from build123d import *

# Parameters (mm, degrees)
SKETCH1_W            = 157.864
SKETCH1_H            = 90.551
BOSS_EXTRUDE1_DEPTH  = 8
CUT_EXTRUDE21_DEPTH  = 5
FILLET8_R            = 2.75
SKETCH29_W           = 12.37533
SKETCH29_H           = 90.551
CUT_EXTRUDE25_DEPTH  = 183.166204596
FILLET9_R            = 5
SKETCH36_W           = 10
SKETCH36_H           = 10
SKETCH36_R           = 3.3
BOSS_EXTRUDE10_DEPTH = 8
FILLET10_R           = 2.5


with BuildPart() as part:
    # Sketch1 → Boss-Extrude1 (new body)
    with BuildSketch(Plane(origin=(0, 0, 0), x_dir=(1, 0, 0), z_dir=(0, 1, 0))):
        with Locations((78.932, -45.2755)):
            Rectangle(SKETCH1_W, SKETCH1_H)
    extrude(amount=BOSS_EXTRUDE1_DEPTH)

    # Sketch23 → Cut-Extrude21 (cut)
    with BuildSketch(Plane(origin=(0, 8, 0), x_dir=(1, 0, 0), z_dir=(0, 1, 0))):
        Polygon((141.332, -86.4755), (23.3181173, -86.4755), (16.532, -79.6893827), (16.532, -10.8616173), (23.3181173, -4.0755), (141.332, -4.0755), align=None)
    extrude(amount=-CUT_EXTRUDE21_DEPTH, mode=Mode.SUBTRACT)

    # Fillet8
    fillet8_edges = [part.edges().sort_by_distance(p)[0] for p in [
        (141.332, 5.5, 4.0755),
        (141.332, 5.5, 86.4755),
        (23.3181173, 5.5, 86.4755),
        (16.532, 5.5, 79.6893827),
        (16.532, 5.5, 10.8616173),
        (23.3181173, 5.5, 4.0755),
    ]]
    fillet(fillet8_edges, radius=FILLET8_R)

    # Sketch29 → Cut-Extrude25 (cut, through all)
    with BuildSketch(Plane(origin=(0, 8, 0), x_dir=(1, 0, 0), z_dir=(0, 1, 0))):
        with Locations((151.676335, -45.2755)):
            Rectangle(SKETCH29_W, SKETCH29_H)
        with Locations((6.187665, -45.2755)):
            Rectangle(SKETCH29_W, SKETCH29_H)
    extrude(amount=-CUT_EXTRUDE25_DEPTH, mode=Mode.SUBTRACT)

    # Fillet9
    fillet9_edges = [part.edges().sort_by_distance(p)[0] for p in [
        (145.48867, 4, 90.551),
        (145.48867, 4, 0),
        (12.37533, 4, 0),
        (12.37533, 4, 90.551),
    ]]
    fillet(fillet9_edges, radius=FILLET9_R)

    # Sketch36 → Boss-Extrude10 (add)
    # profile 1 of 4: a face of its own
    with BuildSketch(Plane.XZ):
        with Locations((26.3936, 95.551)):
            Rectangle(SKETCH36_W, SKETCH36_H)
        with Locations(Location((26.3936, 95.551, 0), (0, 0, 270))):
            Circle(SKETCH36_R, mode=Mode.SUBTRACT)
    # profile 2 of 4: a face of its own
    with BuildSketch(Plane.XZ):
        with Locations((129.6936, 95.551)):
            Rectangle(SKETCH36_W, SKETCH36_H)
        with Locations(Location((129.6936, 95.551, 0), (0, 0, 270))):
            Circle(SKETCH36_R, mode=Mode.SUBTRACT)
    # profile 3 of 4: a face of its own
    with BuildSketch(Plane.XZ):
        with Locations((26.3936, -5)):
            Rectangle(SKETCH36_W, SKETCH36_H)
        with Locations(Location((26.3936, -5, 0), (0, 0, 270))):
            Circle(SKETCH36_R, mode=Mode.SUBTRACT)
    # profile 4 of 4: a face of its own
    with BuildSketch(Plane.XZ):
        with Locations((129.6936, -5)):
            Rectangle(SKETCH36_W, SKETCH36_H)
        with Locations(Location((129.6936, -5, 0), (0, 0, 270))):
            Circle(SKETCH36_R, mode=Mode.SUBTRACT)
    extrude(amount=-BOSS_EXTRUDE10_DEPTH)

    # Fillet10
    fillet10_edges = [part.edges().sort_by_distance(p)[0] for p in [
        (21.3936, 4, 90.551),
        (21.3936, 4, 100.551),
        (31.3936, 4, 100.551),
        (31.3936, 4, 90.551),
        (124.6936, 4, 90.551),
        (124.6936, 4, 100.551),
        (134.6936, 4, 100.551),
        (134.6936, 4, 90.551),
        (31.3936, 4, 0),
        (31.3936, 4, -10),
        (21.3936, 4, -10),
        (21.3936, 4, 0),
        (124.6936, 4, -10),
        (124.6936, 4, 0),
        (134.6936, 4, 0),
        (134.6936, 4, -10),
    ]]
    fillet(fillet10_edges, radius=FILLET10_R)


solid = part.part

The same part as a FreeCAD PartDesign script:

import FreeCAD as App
import Part
import Sketcher

V = App.Vector
Q = App.Units.Quantity


def edges_at(feature, points):
    """Names of the edges that pass closest to the given points."""
    edges = feature.Shape.Edges
    near = lambda p: min(range(len(edges)), key=lambda i: edges[i].distToShape(Part.Vertex(*p))[0])
    return sorted({f"Edge{near(p) + 1}" for p in points})

doc = App.newDocument("Part")
body = doc.addObject("PartDesign::Body", "Body")

# Sketch on XZ plane
sketch1 = doc.addObject("Sketcher::SketchObject", "Sketch")
body.addObject(sketch1)
sketch1.AttachmentSupport = (doc.XZ_Plane, [""])
sketch1.MapMode = "FlatFace"
sketch1.addGeometry(Part.LineSegment(V(0, 0, 0), V(0, 91, 0)), False)
sketch1.addGeometry(Part.LineSegment(V(0, 91, 0), V(158, 91, 0)), False)
sketch1.addGeometry(Part.LineSegment(V(158, 91, 0), V(158, 0, 0)), False)
sketch1.addGeometry(Part.LineSegment(V(158, 0, 0), V(0, 0, 0)), False)
sketch1.addConstraint(Sketcher.Constraint("Coincident", 0, 2, 1, 1))
sketch1.addConstraint(Sketcher.Constraint("Coincident", 1, 2, 2, 1))
sketch1.addConstraint(Sketcher.Constraint("Coincident", 2, 2, 3, 1))
sketch1.addConstraint(Sketcher.Constraint("Coincident", 3, 2, 0, 1))
sketch1.addConstraint(Sketcher.Constraint("Vertical", 0))
sketch1.addConstraint(Sketcher.Constraint("Horizontal", 1))
sketch1.addConstraint(Sketcher.Constraint("Vertical", 2))
sketch1.addConstraint(Sketcher.Constraint("Horizontal", 3))
sketch1.addConstraint(Sketcher.Constraint("Coincident", 3, 2, -1, 1))
sketch1.addConstraint(Sketcher.Constraint("DistanceX", 1, 1, 1, 2, Q("157.864 mm")))
sketch1.addConstraint(Sketcher.Constraint("DistanceY", 0, 1, 0, 2, Q("90.551 mm")))
pad1 = doc.addObject("PartDesign::Pad", "Pad")
body.addObject(pad1)
pad1.Profile = sketch1
pad1.Length = 8
pad1.Reversed = True

# Sketch on XZ plane
sketch2 = doc.addObject("Sketcher::SketchObject", "Sketch001")
body.addObject(sketch2)
sketch2.AttachmentSupport = (doc.XZ_Plane, [""])
sketch2.MapMode = "FlatFace"
sketch2.AttachmentOffset = App.Placement(V(0, 0, -8), App.Rotation())
sketch2.addGeometry(Part.LineSegment(V(23, 86, 0), V(141, 86, 0)), False)
sketch2.addGeometry(Part.LineSegment(V(141, 86, 0), V(141, 4, 0)), False)
sketch2.addGeometry(Part.LineSegment(V(141, 4, 0), V(23, 4, 0)), False)
sketch2.addGeometry(Part.LineSegment(V(23, 4, 0), V(17, 11, 0)), False)
sketch2.addGeometry(Part.LineSegment(V(17, 11, 0), V(17, 80, 0)), False)
sketch2.addGeometry(Part.LineSegment(V(17, 80, 0), V(23, 86, 0)), False)
sketch2.addConstraint(Sketcher.Constraint("Coincident", 0, 2, 1, 1))
sketch2.addConstraint(Sketcher.Constraint("Coincident", 1, 2, 2, 1))
sketch2.addConstraint(Sketcher.Constraint("Coincident", 2, 2, 3, 1))
sketch2.addConstraint(Sketcher.Constraint("Coincident", 3, 2, 4, 1))
sketch2.addConstraint(Sketcher.Constraint("Coincident", 4, 2, 5, 1))
sketch2.addConstraint(Sketcher.Constraint("Coincident", 5, 2, 0, 1))
sketch2.addConstraint(Sketcher.Constraint("Horizontal", 0))
sketch2.addConstraint(Sketcher.Constraint("Vertical", 1))
sketch2.addConstraint(Sketcher.Constraint("Horizontal", 2))
sketch2.addConstraint(Sketcher.Constraint("Vertical", 4))
sketch2.addConstraint(Sketcher.Constraint("Perpendicular", 3, 5))
sketch2.addConstraint(Sketcher.Constraint("Vertical", 2, 2, 5, 2))
sketch2.addConstraint(Sketcher.Constraint("Equal", 3, 5))
sketch2.addConstraint(Sketcher.Constraint("DistanceY", 1, 2, 1, 1, Q("82.4 mm")))
sketch2.addConstraint(Sketcher.Constraint("DistanceX", 3, 2, 1, 2, Q("124.8 mm")))
sketch2.addConstraint(Sketcher.Constraint("DistanceX", -1, 1, 0, 2, Q("141.332 mm")))
sketch2.addConstraint(Sketcher.Constraint("DistanceY", -1, 1, 0, 2, Q("86.4755 mm")))
sketch2.addConstraint(Sketcher.Constraint("Distance", 3, Q("9.597019 mm")))
pocket1 = doc.addObject("PartDesign::Pocket", "Pocket")
body.addObject(pocket1)
pocket1.Profile = sketch2
pocket1.Length = 5
pocket1.Reversed = True
doc.recompute()

fillet = doc.addObject("PartDesign::Fillet", "Fillet")
body.addObject(fillet)
fillet.Base = (pocket1, edges_at(pocket1, [
    (141.332, 5.5, 4.075),
    (141.332, 5.5, 86.475),
    (23.318, 5.5, 86.475),
    (16.532, 5.5, 79.689),
    (16.532, 5.5, 10.862),
    (23.318, 5.5, 4.075),
]))
fillet.Radius = 2.75

# Sketch on XZ plane
sketch3 = doc.addObject("Sketcher::SketchObject", "Sketch002")
body.addObject(sketch3)
sketch3.AttachmentSupport = (doc.XZ_Plane, [""])
sketch3.MapMode = "FlatFace"
sketch3.AttachmentOffset = App.Placement(V(0, 0, -8), App.Rotation())
sketch3.addGeometry(Part.LineSegment(V(145, 0, 0), V(145, 91, 0)), False)
sketch3.addGeometry(Part.LineSegment(V(145, 91, 0), V(158, 91, 0)), False)
sketch3.addGeometry(Part.LineSegment(V(158, 91, 0), V(158, 0, 0)), False)
sketch3.addGeometry(Part.LineSegment(V(158, 0, 0), V(145, 0, 0)), False)
sketch3.addGeometry(Part.LineSegment(V(0, 0, 0), V(0, 91, 0)), False)
sketch3.addGeometry(Part.LineSegment(V(0, 91, 0), V(12, 91, 0)), False)
sketch3.addGeometry(Part.LineSegment(V(12, 91, 0), V(12, 0, 0)), False)
sketch3.addGeometry(Part.LineSegment(V(12, 0, 0), V(0, 0, 0)), False)
sketch3.addConstraint(Sketcher.Constraint("Coincident", 0, 2, 1, 1))
sketch3.addConstraint(Sketcher.Constraint("Coincident", 1, 2, 2, 1))
sketch3.addConstraint(Sketcher.Constraint("Coincident", 2, 2, 3, 1))
sketch3.addConstraint(Sketcher.Constraint("Coincident", 3, 2, 0, 1))
sketch3.addConstraint(Sketcher.Constraint("Coincident", 4, 2, 5, 1))
sketch3.addConstraint(Sketcher.Constraint("Coincident", 5, 2, 6, 1))
sketch3.addConstraint(Sketcher.Constraint("Coincident", 6, 2, 7, 1))
sketch3.addConstraint(Sketcher.Constraint("Coincident", 7, 2, 4, 1))
sketch3.addConstraint(Sketcher.Constraint("Vertical", 0))
sketch3.addConstraint(Sketcher.Constraint("Horizontal", 1))
sketch3.addConstraint(Sketcher.Constraint("Vertical", 2))
sketch3.addConstraint(Sketcher.Constraint("Horizontal", 3))
sketch3.addConstraint(Sketcher.Constraint("Vertical", 4))
sketch3.addConstraint(Sketcher.Constraint("Horizontal", 5))
sketch3.addConstraint(Sketcher.Constraint("Vertical", 6))
sketch3.addConstraint(Sketcher.Constraint("Horizontal", 7))
sketch3.addConstraint(Sketcher.Constraint("Coincident", 7, 2, -1, 1))
sketch3.addConstraint(Sketcher.Constraint("PointOnObject", 2, 2, -1))
sketch3.addConstraint(Sketcher.Constraint("Horizontal", 1, 2, 4, 2))
sketch3.addConstraint(Sketcher.Constraint("Equal", 3, 5))
sketch3.addConstraint(Sketcher.Constraint("DistanceY", 0, 1, 0, 2, Q("90.551 mm")))
sketch3.addConstraint(Sketcher.Constraint("DistanceX", -1, 1, 1, 2, Q("157.864 mm")))
sketch3.addConstraint(Sketcher.Constraint("DistanceX", 1, 1, 1, 2, Q("12.37533 mm")))
pocket2 = doc.addObject("PartDesign::Pocket", "Pocket001")
body.addObject(pocket2)
pocket2.Profile = sketch3
pocket2.Type = "ThroughAll"
pocket2.Reversed = True
doc.recompute()

fillet2 = doc.addObject("PartDesign::Fillet", "Fillet001")
body.addObject(fillet2)
fillet2.Base = (pocket2, edges_at(pocket2, [
    (145.489, 4, 90.551),
    (145.489, 4, 0),
    (12.375, 4, 0),
    (12.375, 4, 90.551),
]))
fillet2.Radius = 5

# Sketch on XZ plane
sketch4 = doc.addObject("Sketcher::SketchObject", "Sketch003")
body.addObject(sketch4)
sketch4.AttachmentSupport = (doc.XZ_Plane, [""])
sketch4.MapMode = "FlatFace"
sketch4.addGeometry(Part.LineSegment(V(21.4, 100.6, 0), V(21.4, 90.6, 0)), False)
sketch4.addGeometry(Part.LineSegment(V(21.4, 90.6, 0), V(31.4, 90.6, 0)), False)
sketch4.addGeometry(Part.LineSegment(V(31.4, 90.6, 0), V(31.4, 100.6, 0)), False)
sketch4.addGeometry(Part.LineSegment(V(31.4, 100.6, 0), V(21.4, 100.6, 0)), False)
sketch4.addGeometry(Part.Circle(V(26.4, 95.6, 0), V(0, 0, 1), 3.3), False)
sketch4.addGeometry(Part.LineSegment(V(124.7, 100.6, 0), V(124.7, 90.6, 0)), False)
sketch4.addGeometry(Part.LineSegment(V(124.7, 90.6, 0), V(134.7, 90.6, 0)), False)
sketch4.addGeometry(Part.LineSegment(V(134.7, 90.6, 0), V(134.7, 100.6, 0)), False)
sketch4.addGeometry(Part.LineSegment(V(134.7, 100.6, 0), V(124.7, 100.6, 0)), False)
sketch4.addGeometry(Part.Circle(V(129.7, 95.6, 0), V(0, 0, 1), 3.3), False)
sketch4.addGeometry(Part.LineSegment(V(21.4, 0, 0), V(21.4, -10, 0)), False)
sketch4.addGeometry(Part.LineSegment(V(21.4, -10, 0), V(31.4, -10, 0)), False)
sketch4.addGeometry(Part.LineSegment(V(31.4, -10, 0), V(31.4, 0, 0)), False)
sketch4.addGeometry(Part.LineSegment(V(31.4, 0, 0), V(21.4, 0, 0)), False)
sketch4.addGeometry(Part.Circle(V(26.4, -5, 0), V(0, 0, 1), 3.3), False)
sketch4.addGeometry(Part.LineSegment(V(124.7, 0, 0), V(124.7, -10, 0)), False)
sketch4.addGeometry(Part.LineSegment(V(124.7, -10, 0), V(134.7, -10, 0)), False)
sketch4.addGeometry(Part.LineSegment(V(134.7, -10, 0), V(134.7, 0, 0)), False)
sketch4.addGeometry(Part.LineSegment(V(134.7, 0, 0), V(124.7, 0, 0)), False)
sketch4.addGeometry(Part.Circle(V(129.7, -5, 0), V(0, 0, 1), 3.3), False)
sketch4.addConstraint(Sketcher.Constraint("Coincident", 0, 2, 1, 1))
sketch4.addConstraint(Sketcher.Constraint("Coincident", 1, 2, 2, 1))
sketch4.addConstraint(Sketcher.Constraint("Coincident", 2, 2, 3, 1))
sketch4.addConstraint(Sketcher.Constraint("Coincident", 3, 2, 0, 1))
sketch4.addConstraint(Sketcher.Constraint("Coincident", 5, 2, 6, 1))
sketch4.addConstraint(Sketcher.Constraint("Coincident", 6, 2, 7, 1))
sketch4.addConstraint(Sketcher.Constraint("Coincident", 7, 2, 8, 1))
sketch4.addConstraint(Sketcher.Constraint("Coincident", 8, 2, 5, 1))
sketch4.addConstraint(Sketcher.Constraint("Coincident", 10, 2, 11, 1))
sketch4.addConstraint(Sketcher.Constraint("Coincident", 11, 2, 12, 1))
sketch4.addConstraint(Sketcher.Constraint("Coincident", 12, 2, 13, 1))
sketch4.addConstraint(Sketcher.Constraint("Coincident", 13, 2, 10, 1))
sketch4.addConstraint(Sketcher.Constraint("Coincident", 15, 2, 16, 1))
sketch4.addConstraint(Sketcher.Constraint("Coincident", 16, 2, 17, 1))
sketch4.addConstraint(Sketcher.Constraint("Coincident", 17, 2, 18, 1))
sketch4.addConstraint(Sketcher.Constraint("Coincident", 18, 2, 15, 1))
sketch4.addConstraint(Sketcher.Constraint("Vertical", 0))
sketch4.addConstraint(Sketcher.Constraint("Horizontal", 1))
sketch4.addConstraint(Sketcher.Constraint("Vertical", 2))
sketch4.addConstraint(Sketcher.Constraint("Horizontal", 3))
sketch4.addConstraint(Sketcher.Constraint("Vertical", 5))
sketch4.addConstraint(Sketcher.Constraint("Horizontal", 6))
sketch4.addConstraint(Sketcher.Constraint("Vertical", 7))
sketch4.addConstraint(Sketcher.Constraint("Horizontal", 8))
sketch4.addConstraint(Sketcher.Constraint("Vertical", 10))
sketch4.addConstraint(Sketcher.Constraint("Horizontal", 11))
sketch4.addConstraint(Sketcher.Constraint("Vertical", 12))
sketch4.addConstraint(Sketcher.Constraint("Horizontal", 13))
sketch4.addConstraint(Sketcher.Constraint("Vertical", 15))
sketch4.addConstraint(Sketcher.Constraint("Horizontal", 16))
sketch4.addConstraint(Sketcher.Constraint("Vertical", 17))
sketch4.addConstraint(Sketcher.Constraint("Horizontal", 18))
sketch4.addConstraint(Sketcher.Constraint("Equal", 4, 9))
sketch4.addConstraint(Sketcher.Constraint("Equal", 9, 14))
sketch4.addConstraint(Sketcher.Constraint("Equal", 14, 19))
sketch4.addConstraint(Sketcher.Constraint("PointOnObject", 12, 2, -1))
sketch4.addConstraint(Sketcher.Constraint("PointOnObject", 17, 2, -1))
sketch4.addConstraint(Sketcher.Constraint("Horizontal", 4, 3, 9, 3))
sketch4.addConstraint(Sketcher.Constraint("Horizontal", 14, 3, 19, 3))
sketch4.addConstraint(Sketcher.Constraint("Horizontal", 1, 2, 5, 2))
sketch4.addConstraint(Sketcher.Constraint("Horizontal", 3, 2, 7, 2))
sketch4.addConstraint(Sketcher.Constraint("Horizontal", 11, 2, 15, 2))
sketch4.addConstraint(Sketcher.Constraint("Vertical", 4, 3, 14, 3))
sketch4.addConstraint(Sketcher.Constraint("Vertical", 9, 3, 19, 3))
sketch4.addConstraint(Sketcher.Constraint("Vertical", 3, 2, 10, 2))
sketch4.addConstraint(Sketcher.Constraint("Vertical", 2, 2, 11, 2))
sketch4.addConstraint(Sketcher.Constraint("Vertical", 8, 2, 15, 2))
sketch4.addConstraint(Sketcher.Constraint("Vertical", 7, 2, 16, 2))
sketch4.addConstraint(Sketcher.Constraint("Equal", 3, 6))
sketch4.addConstraint(Sketcher.Constraint("Equal", 18, 0))
sketch4.addConstraint(Sketcher.Constraint("Equal", 7, 10))
sketch4.addConstraint(Sketcher.Constraint("Diameter", 4, Q("6.6 mm")))
sketch4.addConstraint(Sketcher.Constraint("DistanceX", 1, 1, 1, 2, Q("10 mm")))
sketch4.addConstraint(Sketcher.Constraint("DistanceY", 14, 3, -1, 1, Q("5 mm")))
sketch4.addConstraint(Sketcher.Constraint("DistanceX", 0, 2, 4, 3, Q("5 mm")))
sketch4.addConstraint(Sketcher.Constraint("DistanceY", 0, 2, 4, 3, Q("5 mm")))
sketch4.addConstraint(Sketcher.Constraint("DistanceX", 5, 2, 9, 3, Q("5 mm")))
sketch4.addConstraint(Sketcher.Constraint("DistanceX", 4, 3, 9, 3, Q("103.3 mm")))
sketch4.addConstraint(Sketcher.Constraint("DistanceY", -1, 1, 4, 3, Q("95.551 mm")))
sketch4.addConstraint(Sketcher.Constraint("DistanceX", -1, 1, 4, 3, Q("26.3936 mm")))
pad2 = doc.addObject("PartDesign::Pad", "Pad001")
body.addObject(pad2)
pad2.Profile = sketch4
pad2.Length = 8
pad2.Reversed = True
doc.recompute()

fillet3 = doc.addObject("PartDesign::Fillet", "Fillet002")
body.addObject(fillet3)
fillet3.Base = (pad2, edges_at(pad2, [
    (21.394, 4, 90.551),
    (21.394, 4, 100.551),
    (31.394, 4, 100.551),
    (31.394, 4, 90.551),
    (124.694, 4, 90.551),
    (124.694, 4, 100.551),
    (134.694, 4, 100.551),
    (134.694, 4, 90.551),
    (31.394, 4, 0),
    (31.394, 4, -10),
    (21.394, 4, -10),
    (21.394, 4, 0),
    (124.694, 4, -10),
    (124.694, 4, 0),
    (134.694, 4, 0),
    (134.694, 4, -10),
]))
fillet3.Radius = 2.5

doc.recompute()
